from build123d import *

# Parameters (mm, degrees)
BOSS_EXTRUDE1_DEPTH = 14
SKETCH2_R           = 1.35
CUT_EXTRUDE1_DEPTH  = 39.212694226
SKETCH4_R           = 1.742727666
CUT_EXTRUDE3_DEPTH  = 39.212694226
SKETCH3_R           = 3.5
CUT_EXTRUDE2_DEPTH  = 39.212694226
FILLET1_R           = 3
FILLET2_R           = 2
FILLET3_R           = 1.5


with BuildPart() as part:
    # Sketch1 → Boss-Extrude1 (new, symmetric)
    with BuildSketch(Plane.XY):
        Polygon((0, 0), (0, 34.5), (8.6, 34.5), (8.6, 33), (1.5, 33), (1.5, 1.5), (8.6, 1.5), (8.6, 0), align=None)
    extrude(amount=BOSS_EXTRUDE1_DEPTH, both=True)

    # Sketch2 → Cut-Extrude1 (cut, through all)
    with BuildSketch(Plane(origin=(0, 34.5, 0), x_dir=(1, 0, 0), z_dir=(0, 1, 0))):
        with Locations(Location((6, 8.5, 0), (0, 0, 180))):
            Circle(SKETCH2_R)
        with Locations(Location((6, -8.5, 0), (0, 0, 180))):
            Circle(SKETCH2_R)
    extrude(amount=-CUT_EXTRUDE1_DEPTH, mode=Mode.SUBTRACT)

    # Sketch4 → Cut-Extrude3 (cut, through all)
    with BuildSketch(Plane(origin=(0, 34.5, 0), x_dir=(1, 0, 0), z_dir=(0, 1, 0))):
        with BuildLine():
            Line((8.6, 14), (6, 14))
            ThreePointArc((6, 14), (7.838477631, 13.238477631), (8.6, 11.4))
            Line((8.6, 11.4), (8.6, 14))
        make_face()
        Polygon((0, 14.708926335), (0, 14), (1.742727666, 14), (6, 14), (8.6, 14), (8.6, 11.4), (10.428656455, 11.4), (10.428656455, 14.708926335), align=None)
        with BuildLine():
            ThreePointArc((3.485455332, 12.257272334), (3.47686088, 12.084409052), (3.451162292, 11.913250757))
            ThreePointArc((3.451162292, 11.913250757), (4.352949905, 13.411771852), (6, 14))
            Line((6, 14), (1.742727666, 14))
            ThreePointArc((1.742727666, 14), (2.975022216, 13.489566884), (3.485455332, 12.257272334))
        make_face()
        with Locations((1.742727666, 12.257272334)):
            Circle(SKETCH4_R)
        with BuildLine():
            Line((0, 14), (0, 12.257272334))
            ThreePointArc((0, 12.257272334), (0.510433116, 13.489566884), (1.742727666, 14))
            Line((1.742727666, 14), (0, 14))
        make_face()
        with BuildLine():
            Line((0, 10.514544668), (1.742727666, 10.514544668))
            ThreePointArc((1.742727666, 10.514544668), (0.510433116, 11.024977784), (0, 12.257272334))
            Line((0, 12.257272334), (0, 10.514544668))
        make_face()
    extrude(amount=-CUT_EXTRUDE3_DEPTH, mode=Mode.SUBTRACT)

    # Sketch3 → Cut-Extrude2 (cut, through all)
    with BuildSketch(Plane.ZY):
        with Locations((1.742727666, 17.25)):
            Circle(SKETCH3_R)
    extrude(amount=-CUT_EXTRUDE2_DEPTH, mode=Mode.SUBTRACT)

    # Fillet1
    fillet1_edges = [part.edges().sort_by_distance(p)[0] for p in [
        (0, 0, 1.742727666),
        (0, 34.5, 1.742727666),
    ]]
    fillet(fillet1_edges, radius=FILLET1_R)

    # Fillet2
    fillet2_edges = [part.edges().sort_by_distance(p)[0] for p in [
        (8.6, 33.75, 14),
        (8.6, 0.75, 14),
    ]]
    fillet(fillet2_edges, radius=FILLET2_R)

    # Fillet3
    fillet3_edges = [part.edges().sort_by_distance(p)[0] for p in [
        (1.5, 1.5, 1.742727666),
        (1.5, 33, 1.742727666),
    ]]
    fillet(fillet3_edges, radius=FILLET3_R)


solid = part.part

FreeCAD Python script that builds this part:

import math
import FreeCAD as App
import Part
import Sketcher

V = App.Vector


def edges_at(feature, points):
    """Names of the edges that pass closest to the given points."""
    edges = feature.Shape.Edges
    near = lambda p: min(range(len(edges)), key=lambda i: edges[i].distToShape(Part.Vertex(*p))[0])
    return sorted({f"Edge{near(p) + 1}" for p in points})

doc = App.newDocument("Part")
body = doc.addObject("PartDesign::Body", "Body")

# Sketch on XY plane
sketch1 = body.newObject("Sketcher::SketchObject", "Sketch")
sketch1.AttachmentSupport = (doc.getObject("XY_Plane"), [""])
sketch1.MapMode = "FlatFace"
sketch1.addGeometry([
    Part.LineSegment(V(0, 34.5, 0), V(0, 0, 0)),  # 0
    Part.LineSegment(V(0, 0, 0), V(8.6, 0, 0)),  # 1
    Part.LineSegment(V(8.6, 0, 0), V(8.6, 1.5, 0)),  # 2
    Part.LineSegment(V(8.6, 1.5, 0), V(1.5, 1.5, 0)),  # 3
    Part.LineSegment(V(1.5, 1.5, 0), V(1.5, 33, 0)),  # 4
    Part.LineSegment(V(1.5, 33, 0), V(8.6, 33, 0)),  # 5
    Part.LineSegment(V(8.6, 33, 0), V(8.6, 34.5, 0)),  # 6
    Part.LineSegment(V(8.6, 34.5, 0), V(0, 34.5, 0)),  # 7
], False)
sketch1.addConstraint([
    Sketcher.Constraint("Coincident", 0, 2, 1, 1),
    Sketcher.Constraint("Coincident", 1, 2, 2, 1),
    Sketcher.Constraint("Coincident", 2, 2, 3, 1),
    Sketcher.Constraint("Coincident", 3, 2, 4, 1),
    Sketcher.Constraint("Coincident", 4, 2, 5, 1),
    Sketcher.Constraint("Coincident", 5, 2, 6, 1),
    Sketcher.Constraint("Coincident", 6, 2, 7, 1),
    Sketcher.Constraint("Coincident", 7, 2, 0, 1),
    Sketcher.Constraint("Vertical", 0),
    Sketcher.Constraint("Horizontal", 1),
    Sketcher.Constraint("Vertical", 2),
    Sketcher.Constraint("Horizontal", 3),
    Sketcher.Constraint("Vertical", 4),
    Sketcher.Constraint("Horizontal", 5),
    Sketcher.Constraint("Vertical", 6),
    Sketcher.Constraint("Horizontal", 7),
    Sketcher.Constraint("Coincident", 0, 2, -1, 1),
    Sketcher.Constraint("Vertical", 2, 2, 5, 2),
    Sketcher.Constraint("Equal", 2, 6),
    Sketcher.Constraint("DistanceX", 1, 1, 1, 2, 8.6),
    Sketcher.Constraint("DistanceX", 3, 2, 3, 1, 7.1),
    Sketcher.Constraint("DistanceY", 0, 2, 0, 1, 34.5),
    Sketcher.Constraint("DistanceY", 2, 1, 2, 2, 1.5),
])
pad1 = body.newObject("PartDesign::Pad", "Pad")
pad1.Profile = sketch1
pad1.Length = 28
pad1.Midplane = True

# Sketch on XZ plane
sketch2 = body.newObject("Sketcher::SketchObject", "Sketch001")
sketch2.AttachmentSupport = (doc.getObject("XZ_Plane"), [""])
sketch2.MapMode = "FlatFace"
sketch2.AttachmentOffset = App.Placement(V(0, 0, -34.5), App.Rotation())
sketch2.addGeometry([
    Part.Circle(V(6, -8.5, 0), V(0, 0, 1), 1.35),
    Part.Circle(V(6, 8.5, 0), V(0, 0, 1), 1.35),
], False)
sketch2.addConstraint([
    Sketcher.Constraint("Equal", 0, 1),
    Sketcher.Constraint("Symmetric", 0, 3, 1, 3, -1),
    Sketcher.Constraint("Diameter", 0, 2.7),
    Sketcher.Constraint("DistanceX", -1, 1, 0, 3, 6.0),
    Sketcher.Constraint("DistanceY", 0, 3, 1, 3, 17.0),
])
pocket1 = body.newObject("PartDesign::Pocket", "Pocket")
pocket1.Profile = sketch2
pocket1.Type = "ThroughAll"
pocket1.Reversed = True

# Sketch on XZ plane
sketch3 = body.newObject("Sketcher::SketchObject", "Sketch002")
sketch3.AttachmentSupport = (doc.getObject("XZ_Plane"), [""])
sketch3.MapMode = "FlatFace"
sketch3.AttachmentOffset = App.Placement(V(0, 0, -34.5), App.Rotation())
sketch3.addGeometry([
    Part.ArcOfCircle(Part.Circle(V(6, -11.4, 0), V(0, 0, 1), 2.6), math.radians(-90), math.radians(0)),  # 0
    Part.LineSegment(V(8.6, -11.4, 0), V(10.428656, -11.4, 0)),  # 1
    Part.LineSegment(V(10.428656, -11.4, 0), V(10.428656, -14.708926, 0)),  # 2
    Part.LineSegment(V(10.428656, -14.708926, 0), V(0, -14.708926, 0)),  # 3
    Part.LineSegment(V(0, -14.708926, 0), V(0, -10.514545, 0)),  # 4
    Part.LineSegment(V(0, -10.514545, 0), V(1.742728, -10.514545, 0)),  # 5
    Part.ArcOfCircle(Part.Circle(V(1.742728, -12.257272, 0), V(0, 0, 1), 1.742728), math.radians(11.385198), math.radians(90)),  # 6
    Part.ArcOfCircle(Part.Circle(V(6, -11.4, 0), V(0, 0, 1), 2.6), math.radians(-168.614799), math.radians(-90)),  # 7
], False)
sketch3.addConstraint([
    Sketcher.Constraint("Coincident", 0, 2, 1, 1),
    Sketcher.Constraint("Coincident", 1, 2, 2, 1),
    Sketcher.Constraint("Coincident", 2, 2, 3, 1),
    Sketcher.Constraint("Coincident", 3, 2, 4, 1),
    Sketcher.Constraint("Coincident", 4, 2, 5, 1),
    Sketcher.Constraint("Tangent", 5, 2, 6, 2),
    Sketcher.Constraint("Tangent", 6, 1, 7, 1),
    Sketcher.Constraint("Tangent", 7, 2, 0, 1),
    Sketcher.Constraint("Horizontal", 1),
    Sketcher.Constraint("Vertical", 2),
    Sketcher.Constraint("Horizontal", 3),
    Sketcher.Constraint("Vertical", 4),
    Sketcher.Constraint("Horizontal", 5),
    Sketcher.Constraint("Equal", 0, 7),
    Sketcher.Constraint("PointOnObject", 3, 2, -2),
    Sketcher.Constraint("Horizontal", 7, 3, 0, 2),
    Sketcher.Constraint("Vertical", 0, 3, 7, 2),
    Sketcher.Constraint("Radius", 0, 2.6),
    Sketcher.Constraint("DistanceX", -1, 1, 0, 3, 6.0),
    Sketcher.Constraint("DistanceY", 7, 2, -1, 1, 14.0),
    Sketcher.Constraint("Radius", 6, 1.742728),
    Sketcher.Constraint("DistanceY", 4, 1, 4, 2, 4.194382),
    Sketcher.Constraint("DistanceX", 1, 1, 1, 2, 1.828656),
    Sketcher.Constraint("DistanceX", 5, 1, 5, 2, 1.742728),
])
pocket2 = body.newObject("PartDesign::Pocket", "Pocket001")
pocket2.Profile = sketch3
pocket2.Type = "ThroughAll"
pocket2.Reversed = True

# Sketch on YZ plane
sketch4 = body.newObject("Sketcher::SketchObject", "Sketch003")
sketch4.AttachmentSupport = (doc.getObject("YZ_Plane"), [""])
sketch4.MapMode = "FlatFace"
sketch4.addGeometry(Part.Circle(V(17.25, 1.742728, 0), V(0, 0, 1), 3.5), False)
sketch4.addConstraint([
    Sketcher.Constraint("Diameter", 0, 7.0),
    Sketcher.Constraint("DistanceX", -1, 1, 0, 3, 17.25),
    Sketcher.Constraint("DistanceY", -1, 1, 0, 3, 1.742728),
])
pocket3 = body.newObject("PartDesign::Pocket", "Pocket002")
pocket3.Profile = sketch4
pocket3.Type = "ThroughAll"
pocket3.Reversed = True
doc.recompute()

fillet = body.newObject("PartDesign::Fillet", "Fillet")
fillet.Base = (pocket3, edges_at(pocket3, [(0, 0, 1.743), (0, 34.5, 1.743)]))
fillet.Radius = 3
doc.recompute()

fillet2 = body.newObject("PartDesign::Fillet", "Fillet001")
fillet2.Base = (fillet, edges_at(fillet, [(8.6, 33.75, 14), (8.6, 0.75, 14)]))
fillet2.Radius = 2
doc.recompute()

fillet3 = body.newObject("PartDesign::Fillet", "Fillet002")
fillet3.Base = (fillet2, edges_at(fillet2, [(1.5, 1.5, 1.743), (1.5, 33, 1.743)]))
fillet3.Radius = 1.5

doc.recompute()
